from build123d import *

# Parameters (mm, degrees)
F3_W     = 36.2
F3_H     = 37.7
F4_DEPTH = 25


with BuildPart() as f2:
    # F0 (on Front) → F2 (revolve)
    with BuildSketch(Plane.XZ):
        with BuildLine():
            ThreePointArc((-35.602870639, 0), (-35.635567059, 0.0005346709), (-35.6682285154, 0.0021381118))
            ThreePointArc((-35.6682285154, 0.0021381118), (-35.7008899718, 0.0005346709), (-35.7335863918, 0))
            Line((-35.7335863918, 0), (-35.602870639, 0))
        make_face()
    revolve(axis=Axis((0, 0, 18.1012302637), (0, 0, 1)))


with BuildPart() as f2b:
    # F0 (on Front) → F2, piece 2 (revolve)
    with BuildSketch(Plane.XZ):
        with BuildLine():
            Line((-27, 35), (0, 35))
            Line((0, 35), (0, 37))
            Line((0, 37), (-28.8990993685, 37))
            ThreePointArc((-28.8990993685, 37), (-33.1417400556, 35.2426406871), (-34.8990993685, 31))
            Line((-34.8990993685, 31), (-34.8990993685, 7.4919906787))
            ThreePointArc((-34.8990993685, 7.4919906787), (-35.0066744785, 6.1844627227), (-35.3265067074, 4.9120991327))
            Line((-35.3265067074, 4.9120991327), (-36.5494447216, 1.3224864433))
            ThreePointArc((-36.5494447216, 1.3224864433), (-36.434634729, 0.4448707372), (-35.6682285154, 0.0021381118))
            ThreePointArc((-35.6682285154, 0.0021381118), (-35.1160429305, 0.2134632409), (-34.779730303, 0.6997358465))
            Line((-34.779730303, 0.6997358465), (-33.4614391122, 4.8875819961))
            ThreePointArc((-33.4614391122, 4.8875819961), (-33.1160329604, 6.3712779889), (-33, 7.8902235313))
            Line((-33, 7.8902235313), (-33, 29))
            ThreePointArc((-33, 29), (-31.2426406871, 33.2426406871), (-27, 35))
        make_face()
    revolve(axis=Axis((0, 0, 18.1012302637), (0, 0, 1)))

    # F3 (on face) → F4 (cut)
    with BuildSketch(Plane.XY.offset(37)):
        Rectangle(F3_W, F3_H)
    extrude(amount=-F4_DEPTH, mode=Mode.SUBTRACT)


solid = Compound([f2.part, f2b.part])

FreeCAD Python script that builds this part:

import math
import FreeCAD as App
import Part
import Sketcher

V = App.Vector


def add_polygon(sketch, points):
    """Adds a closed chain of lines whose ends are joined by coincident constraints."""
    first, n = sketch.GeometryCount, len(points)
    for a, b in zip(points, points[1:] + points[:1]):
        sketch.addGeometry(Part.LineSegment(App.Vector(*a, 0), App.Vector(*b, 0)), False)
    for i in range(n):
        sketch.addConstraint(Sketcher.Constraint("Coincident", first + i, 2, first + (i + 1) % n, 1))

doc = App.newDocument("Part")
body = doc.addObject("PartDesign::Body", "Body")

# Sketch on XZ plane
sketch1 = doc.addObject("Sketcher::SketchObject", "Sketch")
body.addObject(sketch1)
sketch1.AttachmentSupport = (doc.XZ_Plane, [""])
sketch1.MapMode = "FlatFace"
sketch1.addGeometry([
    Part.ArcOfCircle(Part.Circle(V(-35.6, 1, 0), V(0, 0, 1), 1), math.radians(-93.75), math.radians(-90)),
    Part.ArcOfCircle(Part.Circle(V(-35.73, 1, 0), V(0, 0, 1), 1), math.radians(-90), math.radians(-86.25)),
    Part.LineSegment(V(-35.73, 0, 0), V(-35.6, 0, 0)),
], False)
sketch1.addConstraint([
    Sketcher.Constraint("Coincident", 0, 1, 1, 2),
    Sketcher.Constraint("Tangent", 1, 1, 2, 1),
    Sketcher.Constraint("Tangent", 2, 2, 0, 2),
    Sketcher.Constraint("Horizontal", 2),
    Sketcher.Constraint("Equal", 0, 1),
    Sketcher.Constraint("PointOnObject", 1, 1, -1),
    Sketcher.Constraint("Radius", 0, 1.0),
    Sketcher.Constraint("DistanceX", 2, 1, 2, 2, 0.130716),
    Sketcher.Constraint("DistanceX", 0, 3, -1, 1, 35.602871),
])
revolution = doc.addObject("PartDesign::Revolution", "Revolution")
body.addObject(revolution)
revolution.Profile = sketch1
revolution.ReferenceAxis = (sketch1, ["V_Axis"])
revolution.Angle = 360
body2 = doc.addObject("PartDesign::Body", "Body001")

# Sketch on XZ plane
sketch2 = doc.addObject("Sketcher::SketchObject", "Sketch001")
body2.addObject(sketch2)
sketch2.AttachmentSupport = (doc.getObject("XZ_Plane001"), [""])
sketch2.MapMode = "FlatFace"
sketch2.addGeometry([
    Part.LineSegment(V(-27, 35, 0), V(0, 35, 0)),  # 0
    Part.LineSegment(V(0, 35, 0), V(0, 37, 0)),  # 1
    Part.LineSegment(V(0, 37, 0), V(-28.9, 37, 0)),  # 2
    Part.ArcOfCircle(Part.Circle(V(-28.9, 31, 0), V(0, 0, 1), 6), math.radians(90), math.radians(180)),  # 3
    Part.LineSegment(V(-34.9, 31, 0), V(-34.9, 7.5, 0)),  # 4
    Part.ArcOfCircle(Part.Circle(V(-42.9, 7.5, 0), V(0, 0, 1), 8), math.radians(-18.81), math.radians(0)),  # 5
    Part.LineSegment(V(-35.3, 4.9, 0), V(-36.5, 1.3, 0)),  # 6
    Part.ArcOfCircle(Part.Circle(V(-35.6, 1, 0), V(0, 0, 1), 1), math.radians(161), math.radians(266)),  # 7
    Part.ArcOfCircle(Part.Circle(V(-35.7, 1, 0), V(0, 0, 1), 1), math.radians(-86), math.radians(-17)),  # 8
    Part.LineSegment(V(-34.8, 0.7, 0), V(-33.5, 4.9, 0)),  # 9
    Part.ArcOfCircle(Part.Circle(V(-43, 7.9, 0), V(0, 0, 1), 10), math.radians(-17.47), math.radians(0)),  # 10
    Part.LineSegment(V(-33, 7.9, 0), V(-33, 29, 0)),  # 11
    Part.ArcOfCircle(Part.Circle(V(-27, 29, 0), V(0, 0, 1), 6), math.radians(90), math.radians(180)),  # 12
], False)
sketch2.addConstraint([
    Sketcher.Constraint("Coincident", 0, 2, 1, 1),
    Sketcher.Constraint("Coincident", 1, 2, 2, 1),
    Sketcher.Constraint("Tangent", 2, 2, 3, 1),
    Sketcher.Constraint("Tangent", 3, 2, 4, 1),
    Sketcher.Constraint("Tangent", 4, 2, 5, 2),
    Sketcher.Constraint("Tangent", 5, 1, 6, 1),
    Sketcher.Constraint("Tangent", 6, 2, 7, 1),
    Sketcher.Constraint("Coincident", 7, 2, 8, 1),
    Sketcher.Constraint("Tangent", 8, 2, 9, 1),
    Sketcher.Constraint("Tangent", 9, 2, 10, 1),
    Sketcher.Constraint("Tangent", 10, 2, 11, 1),
    Sketcher.Constraint("Tangent", 11, 2, 12, 2),
    Sketcher.Constraint("Tangent", 12, 1, 0, 1),
    Sketcher.Constraint("Horizontal", 0),
    Sketcher.Constraint("Vertical", 1),
    Sketcher.Constraint("Horizontal", 2),
    Sketcher.Constraint("Vertical", 4),
    Sketcher.Constraint("Vertical", 11),
    Sketcher.Constraint("Equal", 7, 8),
    Sketcher.Constraint("Equal", 3, 12),
    Sketcher.Constraint("PointOnObject", 0, 2, -2),
    Sketcher.Constraint("Horizontal", 7, 3, 8, 3),
    Sketcher.Constraint("Radius", 3, 6.0),
    Sketcher.Constraint("Radius", 5, 8.0),
    Sketcher.Constraint("Radius", 7, 1.0),
    Sketcher.Constraint("Radius", 10, 10.0),
    Sketcher.Constraint("DistanceX", 0, 1, 0, 2, 27.0),
    Sketcher.Constraint("DistanceY", 1, 1, 1, 2, 2.0),
    Sketcher.Constraint("DistanceY", -1, 1, 3, 3, 31.0),
    Sketcher.Constraint("DistanceY", -1, 1, 7, 3, 1.0),
    Sketcher.Constraint("DistanceX", 2, 2, 2, 1, 28.899099),
    Sketcher.Constraint("DistanceY", 4, 2, 4, 1, 23.508009),
    Sketcher.Constraint("DistanceY", -1, 1, 5, 1, 4.912099),
    Sketcher.Constraint("DistanceX", 7, 2, 8, 2, 0.888498),
    Sketcher.Constraint("Distance", 9, 4.390438),
])
revolution2 = doc.addObject("PartDesign::Revolution", "Revolution001")
body2.addObject(revolution2)
revolution2.Profile = sketch2
revolution2.ReferenceAxis = (sketch2, ["V_Axis"])
revolution2.Angle = 360

# Sketch on XY plane
sketch3 = doc.addObject("Sketcher::SketchObject", "Sketch002")
body2.addObject(sketch3)
sketch3.AttachmentSupport = (doc.getObject("XY_Plane001"), [""])
sketch3.MapMode = "FlatFace"
sketch3.AttachmentOffset = App.Placement(V(0, 0, 37), App.Rotation())
add_polygon(sketch3, [(-18, 19), (-18, -19), (18, -19), (18, 19)])  # lines 0-3
sketch3.addConstraint([
    Sketcher.Constraint("Vertical", 0),
    Sketcher.Constraint("Horizontal", 1),
    Sketcher.Constraint("Vertical", 2),
    Sketcher.Constraint("Horizontal", 3),
    Sketcher.Constraint("Symmetric", 0, 2, 2, 2, -1, 1),
    Sketcher.Constraint("DistanceX", 1, 1, 1, 2, 36.2),
    Sketcher.Constraint("DistanceY", 0, 2, 0, 1, 37.7),
])
pocket1 = doc.addObject("PartDesign::Pocket", "Pocket")
body2.addObject(pocket1)
pocket1.Profile = sketch3
pocket1.Length = 25

doc.recompute()
